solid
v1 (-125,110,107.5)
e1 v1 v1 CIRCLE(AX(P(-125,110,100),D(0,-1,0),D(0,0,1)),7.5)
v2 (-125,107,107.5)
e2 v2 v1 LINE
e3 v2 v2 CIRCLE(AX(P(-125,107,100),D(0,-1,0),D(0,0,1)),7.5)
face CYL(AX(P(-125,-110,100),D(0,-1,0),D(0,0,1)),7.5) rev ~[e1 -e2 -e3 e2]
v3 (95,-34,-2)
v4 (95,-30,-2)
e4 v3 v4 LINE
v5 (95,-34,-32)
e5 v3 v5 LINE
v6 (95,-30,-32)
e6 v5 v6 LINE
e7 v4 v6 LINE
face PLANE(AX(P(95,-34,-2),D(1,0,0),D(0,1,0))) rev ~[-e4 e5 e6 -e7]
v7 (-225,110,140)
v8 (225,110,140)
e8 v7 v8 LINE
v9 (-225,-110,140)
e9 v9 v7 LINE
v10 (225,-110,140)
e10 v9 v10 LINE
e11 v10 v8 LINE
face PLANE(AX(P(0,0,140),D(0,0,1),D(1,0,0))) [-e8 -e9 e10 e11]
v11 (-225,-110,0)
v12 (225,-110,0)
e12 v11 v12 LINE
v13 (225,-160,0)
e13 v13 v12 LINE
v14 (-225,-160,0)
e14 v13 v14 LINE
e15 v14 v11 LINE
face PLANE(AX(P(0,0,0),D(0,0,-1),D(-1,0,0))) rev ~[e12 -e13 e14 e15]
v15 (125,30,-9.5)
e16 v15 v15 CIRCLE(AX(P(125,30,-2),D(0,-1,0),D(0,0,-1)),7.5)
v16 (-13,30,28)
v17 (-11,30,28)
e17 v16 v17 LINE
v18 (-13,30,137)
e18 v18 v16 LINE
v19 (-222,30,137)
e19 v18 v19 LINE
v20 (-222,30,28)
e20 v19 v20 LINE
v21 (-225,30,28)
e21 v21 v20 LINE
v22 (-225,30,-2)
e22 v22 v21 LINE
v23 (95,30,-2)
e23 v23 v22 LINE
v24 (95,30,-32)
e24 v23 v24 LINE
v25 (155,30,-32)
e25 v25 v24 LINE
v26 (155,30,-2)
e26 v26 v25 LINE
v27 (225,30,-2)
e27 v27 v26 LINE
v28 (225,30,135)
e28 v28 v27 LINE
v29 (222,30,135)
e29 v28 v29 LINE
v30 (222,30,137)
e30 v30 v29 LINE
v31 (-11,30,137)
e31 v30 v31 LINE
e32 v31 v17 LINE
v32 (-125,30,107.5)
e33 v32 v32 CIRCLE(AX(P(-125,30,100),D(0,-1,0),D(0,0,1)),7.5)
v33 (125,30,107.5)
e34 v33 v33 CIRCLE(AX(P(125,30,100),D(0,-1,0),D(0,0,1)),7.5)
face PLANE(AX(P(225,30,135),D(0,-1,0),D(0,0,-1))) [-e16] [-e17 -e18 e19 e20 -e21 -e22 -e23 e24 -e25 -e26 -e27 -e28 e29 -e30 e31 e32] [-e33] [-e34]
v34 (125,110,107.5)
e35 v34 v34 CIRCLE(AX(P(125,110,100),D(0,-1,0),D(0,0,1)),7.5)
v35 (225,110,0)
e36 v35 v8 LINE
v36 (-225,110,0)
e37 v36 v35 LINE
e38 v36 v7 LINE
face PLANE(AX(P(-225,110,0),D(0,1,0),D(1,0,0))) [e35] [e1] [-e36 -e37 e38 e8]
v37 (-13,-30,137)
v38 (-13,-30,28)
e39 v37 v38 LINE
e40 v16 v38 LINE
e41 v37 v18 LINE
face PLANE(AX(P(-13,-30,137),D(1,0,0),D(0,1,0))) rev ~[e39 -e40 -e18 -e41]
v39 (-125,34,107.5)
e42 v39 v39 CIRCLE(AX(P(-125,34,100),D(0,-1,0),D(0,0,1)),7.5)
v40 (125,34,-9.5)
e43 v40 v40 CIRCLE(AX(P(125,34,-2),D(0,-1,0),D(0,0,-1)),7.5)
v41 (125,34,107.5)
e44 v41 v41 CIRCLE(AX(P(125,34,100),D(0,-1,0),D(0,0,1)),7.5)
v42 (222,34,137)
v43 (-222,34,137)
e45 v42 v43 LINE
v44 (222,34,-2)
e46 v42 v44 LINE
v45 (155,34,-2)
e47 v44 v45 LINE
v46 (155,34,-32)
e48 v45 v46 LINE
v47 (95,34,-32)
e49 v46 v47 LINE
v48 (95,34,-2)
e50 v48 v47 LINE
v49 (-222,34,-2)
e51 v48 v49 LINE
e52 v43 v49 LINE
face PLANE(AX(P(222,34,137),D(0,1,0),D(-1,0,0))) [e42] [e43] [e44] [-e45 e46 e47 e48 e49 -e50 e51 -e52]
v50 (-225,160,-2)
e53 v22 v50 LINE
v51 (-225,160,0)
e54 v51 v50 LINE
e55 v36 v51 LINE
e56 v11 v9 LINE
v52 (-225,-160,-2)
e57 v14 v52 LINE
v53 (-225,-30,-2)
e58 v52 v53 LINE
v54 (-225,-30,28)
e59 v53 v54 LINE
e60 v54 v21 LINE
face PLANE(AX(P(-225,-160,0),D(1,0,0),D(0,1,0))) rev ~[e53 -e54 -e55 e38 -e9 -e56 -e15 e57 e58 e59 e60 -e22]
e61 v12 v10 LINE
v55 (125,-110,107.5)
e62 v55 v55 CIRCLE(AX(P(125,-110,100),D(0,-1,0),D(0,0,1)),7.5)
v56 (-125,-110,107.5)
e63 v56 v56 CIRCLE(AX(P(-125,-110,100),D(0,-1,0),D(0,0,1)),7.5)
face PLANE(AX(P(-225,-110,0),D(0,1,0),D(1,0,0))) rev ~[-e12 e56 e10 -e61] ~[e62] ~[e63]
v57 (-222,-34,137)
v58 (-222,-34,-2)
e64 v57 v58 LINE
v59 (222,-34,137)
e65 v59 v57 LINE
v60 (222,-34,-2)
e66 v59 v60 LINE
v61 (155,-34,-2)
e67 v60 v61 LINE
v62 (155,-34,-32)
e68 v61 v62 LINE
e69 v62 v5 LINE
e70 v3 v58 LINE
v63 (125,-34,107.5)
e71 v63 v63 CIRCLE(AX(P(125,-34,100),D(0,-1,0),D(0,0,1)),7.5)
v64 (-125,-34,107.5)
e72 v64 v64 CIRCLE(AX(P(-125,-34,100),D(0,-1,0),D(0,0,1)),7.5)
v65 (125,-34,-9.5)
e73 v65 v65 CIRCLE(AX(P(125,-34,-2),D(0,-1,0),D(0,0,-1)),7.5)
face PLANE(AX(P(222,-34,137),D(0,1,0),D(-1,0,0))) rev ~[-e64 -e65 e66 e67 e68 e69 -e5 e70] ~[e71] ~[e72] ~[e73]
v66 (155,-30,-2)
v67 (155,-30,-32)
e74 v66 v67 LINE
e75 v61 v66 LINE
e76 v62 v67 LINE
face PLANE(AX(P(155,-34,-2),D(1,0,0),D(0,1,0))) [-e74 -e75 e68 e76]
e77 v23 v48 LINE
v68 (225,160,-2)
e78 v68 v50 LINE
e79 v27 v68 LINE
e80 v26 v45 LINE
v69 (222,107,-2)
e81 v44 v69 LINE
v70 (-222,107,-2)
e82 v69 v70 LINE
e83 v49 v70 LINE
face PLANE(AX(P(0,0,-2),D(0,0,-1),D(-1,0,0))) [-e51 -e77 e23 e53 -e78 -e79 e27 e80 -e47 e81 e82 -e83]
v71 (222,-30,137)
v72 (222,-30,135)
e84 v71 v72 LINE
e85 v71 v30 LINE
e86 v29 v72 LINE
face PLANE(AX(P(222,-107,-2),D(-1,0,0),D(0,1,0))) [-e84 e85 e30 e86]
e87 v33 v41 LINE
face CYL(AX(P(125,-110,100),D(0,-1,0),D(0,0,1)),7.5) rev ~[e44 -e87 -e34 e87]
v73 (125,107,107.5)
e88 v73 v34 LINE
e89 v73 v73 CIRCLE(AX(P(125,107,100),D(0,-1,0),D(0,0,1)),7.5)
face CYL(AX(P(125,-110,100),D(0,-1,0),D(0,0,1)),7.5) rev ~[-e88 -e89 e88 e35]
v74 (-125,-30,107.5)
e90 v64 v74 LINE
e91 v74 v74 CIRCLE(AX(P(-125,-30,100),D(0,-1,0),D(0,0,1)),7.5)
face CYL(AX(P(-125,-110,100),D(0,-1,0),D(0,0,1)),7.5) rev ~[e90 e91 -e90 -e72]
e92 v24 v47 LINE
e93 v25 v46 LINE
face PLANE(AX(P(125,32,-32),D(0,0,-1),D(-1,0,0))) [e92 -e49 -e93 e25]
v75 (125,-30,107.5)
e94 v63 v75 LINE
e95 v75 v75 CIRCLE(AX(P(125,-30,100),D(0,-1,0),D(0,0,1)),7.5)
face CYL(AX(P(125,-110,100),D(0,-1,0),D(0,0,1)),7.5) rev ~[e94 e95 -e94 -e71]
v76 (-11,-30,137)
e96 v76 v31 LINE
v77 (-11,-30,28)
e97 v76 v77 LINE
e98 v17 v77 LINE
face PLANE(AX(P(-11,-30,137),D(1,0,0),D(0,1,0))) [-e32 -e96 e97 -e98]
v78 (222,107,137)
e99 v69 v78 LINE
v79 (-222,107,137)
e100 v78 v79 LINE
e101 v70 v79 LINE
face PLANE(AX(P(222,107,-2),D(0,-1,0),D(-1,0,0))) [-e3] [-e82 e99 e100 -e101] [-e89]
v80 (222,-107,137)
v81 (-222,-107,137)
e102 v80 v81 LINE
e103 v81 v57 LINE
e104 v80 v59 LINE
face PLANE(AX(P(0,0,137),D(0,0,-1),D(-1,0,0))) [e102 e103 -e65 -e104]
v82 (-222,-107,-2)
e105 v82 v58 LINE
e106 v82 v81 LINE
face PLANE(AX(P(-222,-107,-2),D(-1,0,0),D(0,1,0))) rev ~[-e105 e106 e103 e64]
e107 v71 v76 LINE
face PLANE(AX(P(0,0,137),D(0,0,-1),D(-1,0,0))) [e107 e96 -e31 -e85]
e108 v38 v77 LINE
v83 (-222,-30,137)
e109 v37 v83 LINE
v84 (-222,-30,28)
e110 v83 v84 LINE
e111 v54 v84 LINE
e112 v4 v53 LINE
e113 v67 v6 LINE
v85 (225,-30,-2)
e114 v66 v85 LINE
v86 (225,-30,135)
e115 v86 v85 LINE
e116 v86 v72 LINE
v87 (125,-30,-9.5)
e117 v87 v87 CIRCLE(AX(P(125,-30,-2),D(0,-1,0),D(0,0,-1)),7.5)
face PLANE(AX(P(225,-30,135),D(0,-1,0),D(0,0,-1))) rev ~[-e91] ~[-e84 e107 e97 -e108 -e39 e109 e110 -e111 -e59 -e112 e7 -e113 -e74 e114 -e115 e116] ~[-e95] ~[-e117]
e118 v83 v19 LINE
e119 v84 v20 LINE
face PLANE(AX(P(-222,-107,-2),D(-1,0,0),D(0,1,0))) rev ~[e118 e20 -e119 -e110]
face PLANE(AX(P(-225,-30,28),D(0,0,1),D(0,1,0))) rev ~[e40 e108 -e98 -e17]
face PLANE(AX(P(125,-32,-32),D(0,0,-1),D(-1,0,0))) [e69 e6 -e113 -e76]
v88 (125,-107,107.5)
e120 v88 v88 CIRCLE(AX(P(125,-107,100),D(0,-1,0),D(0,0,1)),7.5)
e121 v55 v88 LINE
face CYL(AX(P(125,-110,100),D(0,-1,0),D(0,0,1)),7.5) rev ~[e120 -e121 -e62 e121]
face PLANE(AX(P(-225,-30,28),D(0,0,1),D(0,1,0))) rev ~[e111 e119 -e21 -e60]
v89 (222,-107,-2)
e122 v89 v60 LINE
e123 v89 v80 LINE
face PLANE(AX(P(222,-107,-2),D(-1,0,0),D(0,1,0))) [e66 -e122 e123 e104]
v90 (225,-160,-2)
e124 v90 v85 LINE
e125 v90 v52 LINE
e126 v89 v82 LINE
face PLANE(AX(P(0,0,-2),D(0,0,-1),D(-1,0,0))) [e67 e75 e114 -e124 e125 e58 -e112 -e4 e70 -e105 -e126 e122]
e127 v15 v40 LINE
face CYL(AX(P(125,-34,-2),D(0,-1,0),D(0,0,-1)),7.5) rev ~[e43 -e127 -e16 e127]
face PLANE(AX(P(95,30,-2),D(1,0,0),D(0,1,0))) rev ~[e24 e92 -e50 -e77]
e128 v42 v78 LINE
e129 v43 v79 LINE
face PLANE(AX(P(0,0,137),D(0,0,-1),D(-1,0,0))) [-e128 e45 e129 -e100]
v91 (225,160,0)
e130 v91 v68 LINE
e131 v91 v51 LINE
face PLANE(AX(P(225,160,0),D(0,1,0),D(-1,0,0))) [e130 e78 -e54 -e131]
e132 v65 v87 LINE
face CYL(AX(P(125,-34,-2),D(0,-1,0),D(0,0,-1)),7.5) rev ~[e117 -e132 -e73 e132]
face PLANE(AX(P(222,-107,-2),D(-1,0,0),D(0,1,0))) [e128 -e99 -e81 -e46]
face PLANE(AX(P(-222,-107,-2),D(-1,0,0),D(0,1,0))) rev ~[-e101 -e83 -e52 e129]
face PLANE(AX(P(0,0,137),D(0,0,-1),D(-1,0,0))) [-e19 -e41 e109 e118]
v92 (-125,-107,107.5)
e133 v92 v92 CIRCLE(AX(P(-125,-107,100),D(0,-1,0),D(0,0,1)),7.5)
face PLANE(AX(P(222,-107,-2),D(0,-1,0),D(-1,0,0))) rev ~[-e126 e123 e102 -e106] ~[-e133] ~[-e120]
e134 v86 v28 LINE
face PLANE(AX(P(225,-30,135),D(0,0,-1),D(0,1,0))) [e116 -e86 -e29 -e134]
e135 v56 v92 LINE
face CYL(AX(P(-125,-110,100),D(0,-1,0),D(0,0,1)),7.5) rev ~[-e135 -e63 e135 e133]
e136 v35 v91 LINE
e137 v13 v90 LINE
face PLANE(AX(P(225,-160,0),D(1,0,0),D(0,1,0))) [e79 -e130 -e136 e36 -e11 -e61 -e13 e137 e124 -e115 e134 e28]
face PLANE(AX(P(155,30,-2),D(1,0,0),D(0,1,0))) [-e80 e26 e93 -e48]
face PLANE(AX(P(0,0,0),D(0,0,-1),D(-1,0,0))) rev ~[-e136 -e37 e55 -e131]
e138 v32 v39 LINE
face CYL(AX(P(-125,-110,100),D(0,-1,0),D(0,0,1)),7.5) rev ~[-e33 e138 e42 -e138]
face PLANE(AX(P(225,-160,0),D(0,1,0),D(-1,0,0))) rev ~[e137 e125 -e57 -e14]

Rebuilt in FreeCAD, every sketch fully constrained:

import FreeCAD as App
import Part
import Sketcher

V = App.Vector


def add_polygon(sketch, points):
    """Adds a closed chain of lines whose ends are joined by coincident constraints."""
    first, n = sketch.GeometryCount, len(points)
    for a, b in zip(points, points[1:] + points[:1]):
        sketch.addGeometry(Part.LineSegment(App.Vector(*a, 0), App.Vector(*b, 0)), False)
    for i in range(n):
        sketch.addConstraint(Sketcher.Constraint("Coincident", first + i, 2, first + (i + 1) % n, 1))

doc = App.newDocument("Part")
body = doc.addObject("PartDesign::Body", "Body")

# Sketch on XY plane
sketch1 = body.newObject("Sketcher::SketchObject", "Sketch")
sketch1.AttachmentSupport = (doc.getObject("XY_Plane"), [""])
sketch1.MapMode = "FlatFace"
add_polygon(sketch1, [(-225, 110), (-225, -110), (225, -110), (225, 110)])  # lines 0-3
sketch1.addConstraint([
    Sketcher.Constraint("Vertical", 0),
    Sketcher.Constraint("Horizontal", 1),
    Sketcher.Constraint("Vertical", 2),
    Sketcher.Constraint("Horizontal", 3),
    Sketcher.Constraint("Symmetric", 0, 2, 2, 2, -1, 1),
    Sketcher.Constraint("DistanceX", 1, 1, 1, 2, 450.0),
    Sketcher.Constraint("DistanceY", 0, 2, 0, 1, 220.0),
])
pad1 = body.newObject("PartDesign::Pad", "Pad")
pad1.Profile = sketch1
pad1.Length = 140

# Sketch on XY plane
sketch2 = body.newObject("Sketcher::SketchObject", "Sketch001")
sketch2.AttachmentSupport = (doc.getObject("XY_Plane"), [""])
sketch2.MapMode = "FlatFace"
add_polygon(sketch2, [(225, 160), (225, -160), (-225, -160), (-225, 160)])  # lines 0-3
sketch2.addConstraint([
    Sketcher.Constraint("Vertical", 0),
    Sketcher.Constraint("Horizontal", 1),
    Sketcher.Constraint("Vertical", 2),
    Sketcher.Constraint("Horizontal", 3),
    Sketcher.Constraint("Symmetric", 0, 2, 2, 2, -1, 1),
    Sketcher.Constraint("DistanceX", 1, 2, 1, 1, 450.0),
    Sketcher.Constraint("DistanceY", 0, 2, 0, 1, 320.0),
])
pad2 = body.newObject("PartDesign::Pad", "Pad001")
pad2.Profile = sketch2
pad2.Length = 2
pad2.Reversed = True

# Sketch on XY plane
sketch3 = body.newObject("Sketcher::SketchObject", "Sketch002")
sketch3.AttachmentSupport = (doc.getObject("XY_Plane"), [""])
sketch3.MapMode = "FlatFace"
sketch3.AttachmentOffset = App.Placement(V(0, 0, -2), App.Rotation())
add_polygon(sketch3, [(222, 107), (222, -107), (-222, -107), (-222, 107)])  # lines 0-3
sketch3.addConstraint([
    Sketcher.Constraint("Vertical", 0),
    Sketcher.Constraint("Horizontal", 1),
    Sketcher.Constraint("Vertical", 2),
    Sketcher.Constraint("Horizontal", 3),
    Sketcher.Constraint("Symmetric", 0, 2, 2, 2, -1, 1),
    Sketcher.Constraint("DistanceX", 1, 2, 1, 1, 444.0),
    Sketcher.Constraint("DistanceY", 0, 2, 0, 1, 214.0),
])
pocket1 = body.newObject("PartDesign::Pocket", "Pocket")
pocket1.Profile = sketch3
pocket1.Length = 139
pocket1.Reversed = True

# Sketch on XY plane
sketch4 = body.newObject("Sketcher::SketchObject", "Sketch003")
sketch4.AttachmentSupport = (doc.getObject("XY_Plane"), [""])
sketch4.MapMode = "FlatFace"
sketch4.AttachmentOffset = App.Placement(V(0, 0, 137), App.Rotation())
add_polygon(sketch4, [(222, -30), (222, -34), (-222, -34), (-222, -30)])  # lines 0-3
add_polygon(sketch4, [(222, 34), (222, 30), (-222, 30), (-222, 34)])  # lines 4-7
sketch4.addConstraint([
    Sketcher.Constraint("Vertical", 0),
    Sketcher.Constraint("Horizontal", 1),
    Sketcher.Constraint("Vertical", 2),
    Sketcher.Constraint("Horizontal", 3),
    Sketcher.Constraint("Vertical", 4),
    Sketcher.Constraint("Horizontal", 5),
    Sketcher.Constraint("Vertical", 6),
    Sketcher.Constraint("Horizontal", 7),
    Sketcher.Constraint("Symmetric", 2, 2, 4, 2, -1, 1),
    Sketcher.Constraint("Symmetric", 0, 2, 6, 2, -1, 1),
    Sketcher.Constraint("Vertical", 3, 2, 4, 2),
    Sketcher.Constraint("DistanceX", 1, 2, 1, 1, 444.0),
    Sketcher.Constraint("DistanceY", 0, 2, 0, 1, 4.0),
    Sketcher.Constraint("DistanceY", 0, 2, -1, 1, 34.0),
])
pad3 = body.newObject("PartDesign::Pad", "Pad002")
pad3.Profile = sketch4
pad3.Length = 139
pad3.Reversed = True

# Sketch on XY plane
sketch5 = body.newObject("Sketcher::SketchObject", "Sketch004")
sketch5.AttachmentSupport = (doc.getObject("XY_Plane"), [""])
sketch5.MapMode = "FlatFace"
sketch5.AttachmentOffset = App.Placement(V(0, 0, -2), App.Rotation())
add_polygon(sketch5, [(155, 34), (155, 30), (95, 30), (95, 34)])  # lines 0-3
add_polygon(sketch5, [(155, -30), (155, -34), (95, -34), (95, -30)])  # lines 4-7
sketch5.addConstraint([
    Sketcher.Constraint("Vertical", 0),
    Sketcher.Constraint("Horizontal", 1),
    Sketcher.Constraint("Vertical", 2),
    Sketcher.Constraint("Horizontal", 3),
    Sketcher.Constraint("Vertical", 4),
    Sketcher.Constraint("Horizontal", 5),
    Sketcher.Constraint("Vertical", 6),
    Sketcher.Constraint("Horizontal", 7),
    Sketcher.Constraint("Symmetric", 3, 2, 4, 2, -1),
    Sketcher.Constraint("Symmetric", 1, 2, 6, 2, -1),
    Sketcher.Constraint("DistanceX", 1, 2, 1, 1, 60.0),
    Sketcher.Constraint("DistanceY", 0, 2, 0, 1, 4.0),
    Sketcher.Constraint("DistanceX", -1, 1, 0, 2, 155.0),
    Sketcher.Constraint("DistanceY", -1, 1, 0, 2, 30.0),
])
pad4 = body.newObject("PartDesign::Pad", "Pad003")
pad4.Profile = sketch5
pad4.Length = 30
pad4.Reversed = True

# Sketch on YZ plane
sketch6 = body.newObject("Sketcher::SketchObject", "Sketch005")
sketch6.AttachmentSupport = (doc.getObject("YZ_Plane"), [""])
sketch6.MapMode = "FlatFace"
sketch6.AttachmentOffset = App.Placement(V(0, 0, 225), App.Rotation())
add_polygon(sketch6, [(30, 135), (-30, 135), (-30, -2), (30, -2)])  # lines 0-3
sketch6.addConstraint([
    Sketcher.Constraint("Horizontal", 0),
    Sketcher.Constraint("Vertical", 1),
    Sketcher.Constraint("Horizontal", 2),
    Sketcher.Constraint("Vertical", 3),
    Sketcher.Constraint("DistanceX", 0, 2, 0, 1, 60.0),
    Sketcher.Constraint("DistanceY", 1, 2, 1, 1, 137.0),
    Sketcher.Constraint("DistanceX", 0, 2, -1, 1, 30.0),
    Sketcher.Constraint("DistanceY", -1, 1, 0, 2, 135.0),
])
pocket2 = body.newObject("PartDesign::Pocket", "Pocket001")
pocket2.Profile = sketch6
pocket2.Length = 10

# Sketch on XZ plane
sketch7 = body.newObject("Sketcher::SketchObject", "Sketch006")
sketch7.AttachmentSupport = (doc.getObject("XZ_Plane"), [""])
sketch7.MapMode = "FlatFace"
sketch7.AttachmentOffset = App.Placement(V(0, 0, 34), App.Rotation())
sketch7.addGeometry(Part.Circle(V(125, -2, 0), V(0, 0, 1), 8), False)
sketch7.addConstraint([
    Sketcher.Constraint("Diameter", 0, 15.0),
    Sketcher.Constraint("DistanceX", -1, 1, 0, 3, 125.0),
    Sketcher.Constraint("DistanceY", 0, 3, -1, 1, 2.0),
])
pocket3 = body.newObject("PartDesign::Pocket", "Pocket002")
pocket3.Profile = sketch7
pocket3.Length = 70

# Sketch on XY plane
sketch8 = body.newObject("Sketcher::SketchObject", "Sketch007")
sketch8.AttachmentSupport = (doc.getObject("XY_Plane"), [""])
sketch8.MapMode = "FlatFace"
sketch8.AttachmentOffset = App.Placement(V(0, 0, 137), App.Rotation())
add_polygon(sketch8, [(-11, 30), (-11, -30), (-13, -30), (-13, 30)])  # lines 0-3
sketch8.addConstraint([
    Sketcher.Constraint("Vertical", 0),
    Sketcher.Constraint("Horizontal", 1),
    Sketcher.Constraint("Vertical", 2),
    Sketcher.Constraint("Horizontal", 3),
    Sketcher.Constraint("DistanceX", 1, 2, 1, 1, 2.0),
    Sketcher.Constraint("DistanceY", 0, 2, 0, 1, 60.0),
    Sketcher.Constraint("DistanceX", 0, 2, -1, 1, 11.0),
    Sketcher.Constraint("DistanceY", 0, 2, -1, 1, 30.0),
])
pad5 = body.newObject("PartDesign::Pad", "Pad004")
pad5.Profile = sketch8
pad5.Length = 139
pad5.Reversed = True

# Sketch on YZ plane
sketch9 = body.newObject("Sketcher::SketchObject", "Sketch008")
sketch9.AttachmentSupport = (doc.getObject("YZ_Plane"), [""])
sketch9.MapMode = "FlatFace"
sketch9.AttachmentOffset = App.Placement(V(0, 0, -225), App.Rotation())
add_polygon(sketch9, [(30, -2), (-30, -2), (-30, 28), (30, 28)])  # lines 0-3
sketch9.addConstraint([
    Sketcher.Constraint("Horizontal", 0),
    Sketcher.Constraint("Vertical", 1),
    Sketcher.Constraint("Horizontal", 2),
    Sketcher.Constraint("Vertical", 3),
    Sketcher.Constraint("DistanceX", 0, 2, 0, 1, 60.0),
    Sketcher.Constraint("DistanceY", 1, 1, 1, 2, 30.0),
    Sketcher.Constraint("DistanceX", 0, 2, -1, 1, 30.0),
    Sketcher.Constraint("DistanceY", 0, 2, -1, 1, 2.0),
])
pocket4 = body.newObject("PartDesign::Pocket", "Pocket003")
pocket4.Profile = sketch9
pocket4.Length = 240
pocket4.Reversed = True

# Sketch on XZ plane
sketch10 = body.newObject("Sketcher::SketchObject", "Sketch009")
sketch10.AttachmentSupport = (doc.getObject("XZ_Plane"), [""])
sketch10.MapMode = "FlatFace"
sketch10.AttachmentOffset = App.Placement(V(0, 0, 110), App.Rotation())
sketch10.addGeometry(Part.Circle(V(125, 100, 0), V(0, 0, 1), 8), False)
sketch10.addConstraint([
    Sketcher.Constraint("Diameter", 0, 15.0),
    Sketcher.Constraint("DistanceX", -1, 1, 0, 3, 125.0),
    Sketcher.Constraint("DistanceY", -1, 1, 0, 3, 100.0),
])
pocket5 = body.newObject("PartDesign::Pocket", "Pocket004")
pocket5.Profile = sketch10
pocket5.Length = 220

# Sketch on XZ plane
sketch11 = body.newObject("Sketcher::SketchObject", "Sketch010")
sketch11.AttachmentSupport = (doc.getObject("XZ_Plane"), [""])
sketch11.MapMode = "FlatFace"
sketch11.AttachmentOffset = App.Placement(V(0, 0, 110), App.Rotation())
sketch11.addGeometry(Part.Circle(V(-125, 100, 0), V(0, 0, 1), 8), False)
sketch11.addConstraint([
    Sketcher.Constraint("Diameter", 0, 15.0),
    Sketcher.Constraint("DistanceX", 0, 3, -1, 1, 125.0),
    Sketcher.Constraint("DistanceY", -1, 1, 0, 3, 100.0),
])
pocket6 = body.newObject("PartDesign::Pocket", "Pocket005")
pocket6.Profile = sketch11
pocket6.Length = 220

doc.recompute()
